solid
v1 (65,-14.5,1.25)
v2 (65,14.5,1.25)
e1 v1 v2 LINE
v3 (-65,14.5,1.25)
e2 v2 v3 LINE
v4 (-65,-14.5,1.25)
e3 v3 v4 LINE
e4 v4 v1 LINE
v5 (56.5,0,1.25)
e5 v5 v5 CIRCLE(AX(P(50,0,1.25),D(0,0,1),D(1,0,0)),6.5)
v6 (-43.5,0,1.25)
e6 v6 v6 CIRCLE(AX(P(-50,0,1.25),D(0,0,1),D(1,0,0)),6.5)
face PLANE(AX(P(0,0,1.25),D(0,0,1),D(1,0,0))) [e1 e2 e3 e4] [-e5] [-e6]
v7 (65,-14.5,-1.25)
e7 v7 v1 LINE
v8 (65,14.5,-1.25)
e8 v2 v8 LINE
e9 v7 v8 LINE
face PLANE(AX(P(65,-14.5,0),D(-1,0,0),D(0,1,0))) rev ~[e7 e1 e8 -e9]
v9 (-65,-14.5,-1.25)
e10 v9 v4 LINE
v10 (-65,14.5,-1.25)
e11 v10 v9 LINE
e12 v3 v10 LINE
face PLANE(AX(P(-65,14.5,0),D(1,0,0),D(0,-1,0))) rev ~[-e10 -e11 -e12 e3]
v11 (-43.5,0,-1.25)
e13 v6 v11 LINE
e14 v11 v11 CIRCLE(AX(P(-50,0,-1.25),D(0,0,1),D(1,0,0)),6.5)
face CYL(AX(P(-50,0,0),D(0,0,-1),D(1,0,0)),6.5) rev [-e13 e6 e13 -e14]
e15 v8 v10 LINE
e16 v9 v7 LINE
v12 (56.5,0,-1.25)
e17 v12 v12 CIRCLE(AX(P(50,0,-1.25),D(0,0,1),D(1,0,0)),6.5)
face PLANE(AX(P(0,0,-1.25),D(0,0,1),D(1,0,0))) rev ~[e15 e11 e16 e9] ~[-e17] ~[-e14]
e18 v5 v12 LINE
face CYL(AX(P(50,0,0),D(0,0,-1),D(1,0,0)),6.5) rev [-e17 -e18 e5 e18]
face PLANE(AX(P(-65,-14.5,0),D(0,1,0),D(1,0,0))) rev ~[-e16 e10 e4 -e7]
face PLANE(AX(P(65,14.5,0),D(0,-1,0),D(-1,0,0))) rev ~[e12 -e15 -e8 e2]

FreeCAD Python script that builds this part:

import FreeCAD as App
import Part
import Sketcher
Q = App.Units.Quantity


def add_polygon(sketch, points):
    """Adds a closed chain of lines whose ends are joined by coincident constraints."""
    first, n = sketch.GeometryCount, len(points)
    for a, b in zip(points, points[1:] + points[:1]):
        sketch.addGeometry(Part.LineSegment(App.Vector(*a, 0), App.Vector(*b, 0)), False)
    for i in range(n):
        sketch.addConstraint(Sketcher.Constraint("Coincident", first + i, 2, first + (i + 1) % n, 1))

doc = App.newDocument("Part")
body = doc.addObject("PartDesign::Body", "Body")

# Sketch on XY plane
sketch1 = body.newObject("Sketcher::SketchObject", "Sketch")
sketch1.AttachmentSupport = (doc.getObject("XY_Plane"), [""])
sketch1.MapMode = "FlatFace"
add_polygon(sketch1, [(-65, 14), (-65, -14), (65, -14), (65, 14)])  # lines 0-3
sketch1.addGeometry(Part.Circle(App.Vector(-50, 0, 0), App.Vector(0, 0, 1), 6), False)  # 4
sketch1.addGeometry(Part.Circle(App.Vector(50, 0, 0), App.Vector(0, 0, 1), 6), False)  # 5
sketch1.addConstraint([
    Sketcher.Constraint("Vertical", 0),
    Sketcher.Constraint("Horizontal", 1),
    Sketcher.Constraint("Vertical", 2),
    Sketcher.Constraint("Horizontal", 3),
    Sketcher.Constraint("Equal", 4, 5),
    Sketcher.Constraint("Symmetric", 4, 3, 5, 3, -1, 1),
    Sketcher.Constraint("Symmetric", 0, 2, 2, 2, -1, 1),
    Sketcher.Constraint("PointOnObject", 4, 3, -1),
    Sketcher.Constraint("Diameter", 4, Q("13 mm")),
    Sketcher.Constraint("DistanceX", 1, 1, 1, 2, Q("130 mm")),
    Sketcher.Constraint("DistanceY", 0, 2, 0, 1, Q("29 mm")),
    Sketcher.Constraint("DistanceX", 4, 3, 5, 3, Q("100 mm")),
])
pad1 = body.newObject("PartDesign::Pad", "Pad")
pad1.Profile = sketch1
pad1.Length = 2.5
pad1.Midplane = True

doc.recompute()
